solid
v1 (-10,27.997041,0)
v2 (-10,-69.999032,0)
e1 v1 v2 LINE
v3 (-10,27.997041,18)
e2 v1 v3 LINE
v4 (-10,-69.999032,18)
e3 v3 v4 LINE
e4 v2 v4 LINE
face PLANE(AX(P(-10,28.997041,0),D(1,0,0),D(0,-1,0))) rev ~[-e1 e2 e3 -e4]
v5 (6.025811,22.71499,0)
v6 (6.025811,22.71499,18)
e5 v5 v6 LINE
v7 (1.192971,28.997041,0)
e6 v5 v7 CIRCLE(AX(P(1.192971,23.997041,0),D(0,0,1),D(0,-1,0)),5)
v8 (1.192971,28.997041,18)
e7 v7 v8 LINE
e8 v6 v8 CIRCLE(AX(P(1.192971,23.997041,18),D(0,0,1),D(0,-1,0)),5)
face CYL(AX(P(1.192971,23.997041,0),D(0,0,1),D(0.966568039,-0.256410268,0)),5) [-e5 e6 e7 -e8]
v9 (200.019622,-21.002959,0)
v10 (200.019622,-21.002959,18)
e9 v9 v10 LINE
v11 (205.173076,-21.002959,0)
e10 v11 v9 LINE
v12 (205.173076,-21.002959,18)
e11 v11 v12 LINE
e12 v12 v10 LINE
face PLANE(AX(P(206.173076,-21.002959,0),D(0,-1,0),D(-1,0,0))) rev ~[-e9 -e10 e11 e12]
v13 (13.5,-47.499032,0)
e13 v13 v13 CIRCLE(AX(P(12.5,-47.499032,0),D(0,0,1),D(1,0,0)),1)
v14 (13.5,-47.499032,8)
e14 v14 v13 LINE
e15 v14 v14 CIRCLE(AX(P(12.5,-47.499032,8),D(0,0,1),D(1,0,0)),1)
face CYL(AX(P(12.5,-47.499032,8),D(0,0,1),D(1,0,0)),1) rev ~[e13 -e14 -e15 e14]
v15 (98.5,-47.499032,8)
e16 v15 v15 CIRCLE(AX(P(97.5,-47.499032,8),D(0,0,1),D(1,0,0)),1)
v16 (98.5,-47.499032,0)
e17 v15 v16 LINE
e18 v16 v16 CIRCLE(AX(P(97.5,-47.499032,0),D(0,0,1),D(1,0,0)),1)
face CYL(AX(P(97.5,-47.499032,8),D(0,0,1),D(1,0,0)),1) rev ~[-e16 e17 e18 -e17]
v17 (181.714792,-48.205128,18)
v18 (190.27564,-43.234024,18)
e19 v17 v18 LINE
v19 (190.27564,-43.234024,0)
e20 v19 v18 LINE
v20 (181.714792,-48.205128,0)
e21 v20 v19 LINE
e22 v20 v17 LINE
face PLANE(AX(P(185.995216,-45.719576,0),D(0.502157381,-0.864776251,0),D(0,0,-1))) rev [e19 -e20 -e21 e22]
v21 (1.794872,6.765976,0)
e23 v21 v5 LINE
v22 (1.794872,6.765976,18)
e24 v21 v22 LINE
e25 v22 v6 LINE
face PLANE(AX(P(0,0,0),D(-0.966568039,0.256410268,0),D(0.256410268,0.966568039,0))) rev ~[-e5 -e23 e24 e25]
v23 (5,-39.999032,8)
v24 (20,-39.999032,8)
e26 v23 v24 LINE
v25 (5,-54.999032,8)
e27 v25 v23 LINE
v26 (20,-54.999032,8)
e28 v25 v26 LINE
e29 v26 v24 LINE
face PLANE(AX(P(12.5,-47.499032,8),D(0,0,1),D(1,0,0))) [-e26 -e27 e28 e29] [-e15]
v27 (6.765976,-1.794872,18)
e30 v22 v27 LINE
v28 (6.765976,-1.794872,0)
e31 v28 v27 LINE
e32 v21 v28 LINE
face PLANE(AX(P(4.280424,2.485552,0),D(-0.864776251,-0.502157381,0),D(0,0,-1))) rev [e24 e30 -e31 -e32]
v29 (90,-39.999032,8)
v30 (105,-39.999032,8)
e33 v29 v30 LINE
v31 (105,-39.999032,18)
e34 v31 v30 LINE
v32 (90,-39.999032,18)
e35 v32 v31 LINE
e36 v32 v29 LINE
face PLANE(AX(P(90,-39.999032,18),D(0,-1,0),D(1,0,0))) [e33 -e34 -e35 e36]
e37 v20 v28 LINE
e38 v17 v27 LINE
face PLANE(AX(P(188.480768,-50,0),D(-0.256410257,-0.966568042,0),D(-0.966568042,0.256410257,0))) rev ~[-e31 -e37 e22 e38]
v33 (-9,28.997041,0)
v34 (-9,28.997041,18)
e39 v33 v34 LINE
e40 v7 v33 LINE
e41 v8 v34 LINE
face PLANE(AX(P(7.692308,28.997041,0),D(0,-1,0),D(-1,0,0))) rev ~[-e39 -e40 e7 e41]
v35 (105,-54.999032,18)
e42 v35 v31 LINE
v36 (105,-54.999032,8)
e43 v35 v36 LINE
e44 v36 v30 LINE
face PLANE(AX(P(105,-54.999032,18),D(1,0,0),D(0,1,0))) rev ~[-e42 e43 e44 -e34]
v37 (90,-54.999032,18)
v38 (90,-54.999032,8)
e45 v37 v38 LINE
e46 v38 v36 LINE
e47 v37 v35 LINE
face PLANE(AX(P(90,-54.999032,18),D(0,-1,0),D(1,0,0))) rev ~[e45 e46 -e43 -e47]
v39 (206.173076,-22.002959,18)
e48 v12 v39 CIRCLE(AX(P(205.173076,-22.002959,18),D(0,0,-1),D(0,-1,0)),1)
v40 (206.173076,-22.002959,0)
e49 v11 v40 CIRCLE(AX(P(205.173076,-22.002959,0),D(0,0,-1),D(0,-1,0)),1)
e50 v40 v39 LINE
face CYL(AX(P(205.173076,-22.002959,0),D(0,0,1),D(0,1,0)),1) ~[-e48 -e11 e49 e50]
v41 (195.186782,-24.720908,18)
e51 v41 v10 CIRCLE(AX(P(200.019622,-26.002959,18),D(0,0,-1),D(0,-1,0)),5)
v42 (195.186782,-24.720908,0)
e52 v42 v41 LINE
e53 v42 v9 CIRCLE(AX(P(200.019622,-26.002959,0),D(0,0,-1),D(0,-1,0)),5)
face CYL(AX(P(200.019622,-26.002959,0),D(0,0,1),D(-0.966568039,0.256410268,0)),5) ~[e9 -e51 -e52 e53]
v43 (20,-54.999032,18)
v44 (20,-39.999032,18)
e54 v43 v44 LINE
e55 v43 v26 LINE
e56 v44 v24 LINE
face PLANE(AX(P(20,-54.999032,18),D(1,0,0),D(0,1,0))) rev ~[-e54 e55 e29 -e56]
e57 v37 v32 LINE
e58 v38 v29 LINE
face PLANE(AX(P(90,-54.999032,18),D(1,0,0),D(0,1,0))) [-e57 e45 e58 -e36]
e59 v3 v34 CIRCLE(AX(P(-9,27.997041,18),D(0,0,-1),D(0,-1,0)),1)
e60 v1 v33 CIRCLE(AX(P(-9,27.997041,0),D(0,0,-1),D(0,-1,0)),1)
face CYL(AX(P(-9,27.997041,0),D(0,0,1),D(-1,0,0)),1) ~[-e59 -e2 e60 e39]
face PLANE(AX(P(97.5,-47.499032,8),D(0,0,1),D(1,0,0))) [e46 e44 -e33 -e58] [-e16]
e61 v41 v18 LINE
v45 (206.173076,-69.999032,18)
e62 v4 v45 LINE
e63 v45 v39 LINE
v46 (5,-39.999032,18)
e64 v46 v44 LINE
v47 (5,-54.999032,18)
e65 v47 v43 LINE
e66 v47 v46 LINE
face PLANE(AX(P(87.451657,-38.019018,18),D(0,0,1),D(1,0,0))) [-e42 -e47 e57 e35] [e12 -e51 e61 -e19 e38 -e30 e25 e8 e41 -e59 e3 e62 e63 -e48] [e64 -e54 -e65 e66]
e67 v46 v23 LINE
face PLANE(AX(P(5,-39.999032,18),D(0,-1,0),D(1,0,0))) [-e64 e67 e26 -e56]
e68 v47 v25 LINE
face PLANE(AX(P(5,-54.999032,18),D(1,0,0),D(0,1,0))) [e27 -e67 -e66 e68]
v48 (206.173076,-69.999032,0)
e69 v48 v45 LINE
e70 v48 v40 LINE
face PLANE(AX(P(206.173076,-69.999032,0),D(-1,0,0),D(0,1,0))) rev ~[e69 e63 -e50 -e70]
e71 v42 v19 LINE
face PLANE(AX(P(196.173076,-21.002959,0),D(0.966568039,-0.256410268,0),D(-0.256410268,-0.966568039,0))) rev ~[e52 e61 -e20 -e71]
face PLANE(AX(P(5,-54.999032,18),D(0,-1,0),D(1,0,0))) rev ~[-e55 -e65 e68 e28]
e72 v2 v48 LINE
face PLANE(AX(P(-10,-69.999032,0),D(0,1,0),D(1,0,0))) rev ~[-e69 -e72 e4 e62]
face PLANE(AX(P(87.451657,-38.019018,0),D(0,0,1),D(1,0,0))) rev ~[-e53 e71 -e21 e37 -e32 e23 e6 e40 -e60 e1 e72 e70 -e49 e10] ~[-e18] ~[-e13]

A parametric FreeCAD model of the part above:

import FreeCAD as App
import Part
import Sketcher
from FreeCAD import Vector


def edges_at(feature, points):
    """Names of the edges that pass closest to the given points."""
    edges = feature.Shape.Edges
    near = lambda p: min(range(len(edges)), key=lambda i: edges[i].distToShape(Part.Vertex(*p))[0])
    return sorted({f"Edge{near(p) + 1}" for p in points})

doc = App.newDocument("Part")
body = doc.addObject("PartDesign::Body", "Body")

# Sketch on XY plane
sketch1 = body.newObject("Sketcher::SketchObject", "Sketch")
sketch1.AttachmentSupport = (doc.getObject("XY_Plane"), [""])
sketch1.MapMode = "FlatFace"
sketch1.addGeometry([
    Part.LineSegment(Vector(206, -21, 0), Vector(196, -21, 0)),  # 0
    Part.LineSegment(Vector(196, -21, 0), Vector(188, -50, 0)),  # 1
    Part.LineSegment(Vector(188, -50, 0), Vector(0, 0, 0)),  # 2
    Part.LineSegment(Vector(0, 0, 0), Vector(8, 29, 0)),  # 3
    Part.LineSegment(Vector(8, 29, 0), Vector(-10, 29, 0)),  # 4
    Part.LineSegment(Vector(-10, 29, 0), Vector(-10, -70, 0)),  # 5
    Part.LineSegment(Vector(-10, -70, 0), Vector(206, -70, 0)),  # 6
    Part.LineSegment(Vector(206, -70, 0), Vector(206, -21, 0)),  # 7
], False)
sketch1.addConstraint([
    Sketcher.Constraint("Coincident", 0, 2, 1, 1),
    Sketcher.Constraint("Coincident", 1, 2, 2, 1),
    Sketcher.Constraint("Coincident", 2, 2, 3, 1),
    Sketcher.Constraint("Coincident", 3, 2, 4, 1),
    Sketcher.Constraint("Coincident", 4, 2, 5, 1),
    Sketcher.Constraint("Coincident", 5, 2, 6, 1),
    Sketcher.Constraint("Coincident", 6, 2, 7, 1),
    Sketcher.Constraint("Coincident", 7, 2, 0, 1),
    Sketcher.Constraint("Horizontal", 0),
    Sketcher.Constraint("Horizontal", 4),
    Sketcher.Constraint("Vertical", 5),
    Sketcher.Constraint("Horizontal", 6),
    Sketcher.Constraint("Vertical", 7),
    Sketcher.Constraint("Coincident", 2, 2, -1, 1),
    Sketcher.Constraint("Perpendicular", 1, 2),
    Sketcher.Constraint("Perpendicular", 2, 3),
    Sketcher.Constraint("Equal", 1, 3),
    Sketcher.Constraint("DistanceX", 0, 2, 0, 1, 10.0),
    Sketcher.Constraint("Distance", 1, 30.0),
    Sketcher.Constraint("Distance", 2, 195.0),
    Sketcher.Constraint("DistanceY", 1, 2, -1, 1, 50.0),
    Sketcher.Constraint("DistanceX", 4, 2, -1, 1, 10.0),
    Sketcher.Constraint("DistanceY", 5, 2, 5, 1, 98.996073),
])
pad1 = body.newObject("PartDesign::Pad", "Pad")
pad1.Profile = sketch1
pad1.Length = 18
doc.recompute()

fillet = body.newObject("PartDesign::Fillet", "Fillet")
fillet.Base = (pad1, edges_at(pad1, [(7.692, 28.997, 9)]))
fillet.Radius = 5
doc.recompute()

fillet2 = body.newObject("PartDesign::Fillet", "Fillet001")
fillet2.Base = (fillet, edges_at(fillet, [(196.173, -21.003, 9)]))
fillet2.Radius = 5
doc.recompute()

fillet3 = body.newObject("PartDesign::Fillet", "Fillet002")
fillet3.Base = (fillet2, edges_at(fillet2, [(206.173, -21.003, 9)]))
fillet3.Radius = 1
doc.recompute()

fillet4 = body.newObject("PartDesign::Fillet", "Fillet003")
fillet4.Base = (fillet3, edges_at(fillet3, [(-10, 28.997, 9)]))
fillet4.Radius = 1
doc.recompute()

chamfer = body.newObject("PartDesign::Chamfer", "Chamfer")
chamfer.Base = (fillet4, edges_at(fillet4, [(0, 0, 9)]))
chamfer.Size = 7
doc.recompute()

chamfer2 = body.newObject("PartDesign::Chamfer", "Chamfer001")
chamfer2.Base = (chamfer, edges_at(chamfer, [(188.481, -50, 9)]))
chamfer2.Size = 7

# Sketch on XY plane
sketch2 = body.newObject("Sketcher::SketchObject", "Sketch001")
sketch2.AttachmentSupport = (doc.getObject("XY_Plane"), [""])
sketch2.MapMode = "FlatFace"
sketch2.AttachmentOffset = App.Placement(Vector(0, 0, 18), App.Rotation())
sketch2.addGeometry([
    Part.LineSegment(Vector(5, -40, 0), Vector(5, -55, 0)),  # 0
    Part.LineSegment(Vector(5, -55, 0), Vector(20, -55, 0)),  # 1
    Part.LineSegment(Vector(20, -55, 0), Vector(20, -40, 0)),  # 2
    Part.LineSegment(Vector(20, -40, 0), Vector(5, -40, 0)),  # 3
    Part.LineSegment(Vector(90, -40, 0), Vector(90, -55, 0)),  # 4
    Part.LineSegment(Vector(90, -55, 0), Vector(105, -55, 0)),  # 5
    Part.LineSegment(Vector(105, -55, 0), Vector(105, -40, 0)),  # 6
    Part.LineSegment(Vector(105, -40, 0), Vector(90, -40, 0)),  # 7
], False)
sketch2.addConstraint([
    Sketcher.Constraint("Coincident", 0, 2, 1, 1),
    Sketcher.Constraint("Coincident", 1, 2, 2, 1),
    Sketcher.Constraint("Coincident", 2, 2, 3, 1),
    Sketcher.Constraint("Coincident", 3, 2, 0, 1),
    Sketcher.Constraint("Coincident", 4, 2, 5, 1),
    Sketcher.Constraint("Coincident", 5, 2, 6, 1),
    Sketcher.Constraint("Coincident", 6, 2, 7, 1),
    Sketcher.Constraint("Coincident", 7, 2, 4, 1),
    Sketcher.Constraint("Vertical", 0),
    Sketcher.Constraint("Horizontal", 1),
    Sketcher.Constraint("Vertical", 2),
    Sketcher.Constraint("Horizontal", 3),
    Sketcher.Constraint("Vertical", 4),
    Sketcher.Constraint("Horizontal", 5),
    Sketcher.Constraint("Vertical", 6),
    Sketcher.Constraint("Horizontal", 7),
    Sketcher.Constraint("Horizontal", 1, 2, 4, 2),
    Sketcher.Constraint("Horizontal", 3, 2, 6, 2),
    Sketcher.Constraint("Equal", 3, 5),
    Sketcher.Constraint("Equal", 7, 0),
    Sketcher.Constraint("DistanceX", 1, 1, 1, 2, 15.0),
    Sketcher.Constraint("DistanceX", -1, 1, 0, 2, 5.0),
    Sketcher.Constraint("DistanceX", -1, 1, 4, 2, 90.0),
    Sketcher.Constraint("DistanceY", 0, 2, -1, 1, 54.999032),
])
pocket1 = body.newObject("PartDesign::Pocket", "Pocket")
pocket1.Profile = sketch2
pocket1.Length = 10

# Sketch on XY plane
sketch3 = body.newObject("Sketcher::SketchObject", "Sketch002")
sketch3.AttachmentSupport = (doc.getObject("XY_Plane"), [""])
sketch3.MapMode = "FlatFace"
sketch3.AttachmentOffset = App.Placement(Vector(0, 0, 8), App.Rotation())
sketch3.addGeometry(Part.Circle(Vector(12.5, -47.5, 0), Vector(0, 0, 1), 1), False)
sketch3.addConstraint([
    Sketcher.Constraint("Diameter", 0, 2.0),
    Sketcher.Constraint("DistanceX", -1, 1, 0, 3, 12.5),
    Sketcher.Constraint("DistanceY", 0, 3, -1, 1, 47.499032),
])
pocket2 = body.newObject("PartDesign::Pocket", "Pocket001")
pocket2.Profile = sketch3
pocket2.Length = 8

# Sketch on XY plane
sketch4 = body.newObject("Sketcher::SketchObject", "Sketch003")
sketch4.AttachmentSupport = (doc.getObject("XY_Plane"), [""])
sketch4.MapMode = "FlatFace"
sketch4.AttachmentOffset = App.Placement(Vector(0, 0, 8), App.Rotation())
sketch4.addGeometry(Part.Circle(Vector(97.5, -47.5, 0), Vector(0, 0, 1), 1), False)
sketch4.addConstraint([
    Sketcher.Constraint("Diameter", 0, 2.0),
    Sketcher.Constraint("DistanceX", -1, 1, 0, 3, 97.5),
    Sketcher.Constraint("DistanceY", 0, 3, -1, 1, 47.499032),
])
pocket3 = body.newObject("PartDesign::Pocket", "Pocket002")
pocket3.Profile = sketch4
pocket3.Length = 8

doc.recompute()
